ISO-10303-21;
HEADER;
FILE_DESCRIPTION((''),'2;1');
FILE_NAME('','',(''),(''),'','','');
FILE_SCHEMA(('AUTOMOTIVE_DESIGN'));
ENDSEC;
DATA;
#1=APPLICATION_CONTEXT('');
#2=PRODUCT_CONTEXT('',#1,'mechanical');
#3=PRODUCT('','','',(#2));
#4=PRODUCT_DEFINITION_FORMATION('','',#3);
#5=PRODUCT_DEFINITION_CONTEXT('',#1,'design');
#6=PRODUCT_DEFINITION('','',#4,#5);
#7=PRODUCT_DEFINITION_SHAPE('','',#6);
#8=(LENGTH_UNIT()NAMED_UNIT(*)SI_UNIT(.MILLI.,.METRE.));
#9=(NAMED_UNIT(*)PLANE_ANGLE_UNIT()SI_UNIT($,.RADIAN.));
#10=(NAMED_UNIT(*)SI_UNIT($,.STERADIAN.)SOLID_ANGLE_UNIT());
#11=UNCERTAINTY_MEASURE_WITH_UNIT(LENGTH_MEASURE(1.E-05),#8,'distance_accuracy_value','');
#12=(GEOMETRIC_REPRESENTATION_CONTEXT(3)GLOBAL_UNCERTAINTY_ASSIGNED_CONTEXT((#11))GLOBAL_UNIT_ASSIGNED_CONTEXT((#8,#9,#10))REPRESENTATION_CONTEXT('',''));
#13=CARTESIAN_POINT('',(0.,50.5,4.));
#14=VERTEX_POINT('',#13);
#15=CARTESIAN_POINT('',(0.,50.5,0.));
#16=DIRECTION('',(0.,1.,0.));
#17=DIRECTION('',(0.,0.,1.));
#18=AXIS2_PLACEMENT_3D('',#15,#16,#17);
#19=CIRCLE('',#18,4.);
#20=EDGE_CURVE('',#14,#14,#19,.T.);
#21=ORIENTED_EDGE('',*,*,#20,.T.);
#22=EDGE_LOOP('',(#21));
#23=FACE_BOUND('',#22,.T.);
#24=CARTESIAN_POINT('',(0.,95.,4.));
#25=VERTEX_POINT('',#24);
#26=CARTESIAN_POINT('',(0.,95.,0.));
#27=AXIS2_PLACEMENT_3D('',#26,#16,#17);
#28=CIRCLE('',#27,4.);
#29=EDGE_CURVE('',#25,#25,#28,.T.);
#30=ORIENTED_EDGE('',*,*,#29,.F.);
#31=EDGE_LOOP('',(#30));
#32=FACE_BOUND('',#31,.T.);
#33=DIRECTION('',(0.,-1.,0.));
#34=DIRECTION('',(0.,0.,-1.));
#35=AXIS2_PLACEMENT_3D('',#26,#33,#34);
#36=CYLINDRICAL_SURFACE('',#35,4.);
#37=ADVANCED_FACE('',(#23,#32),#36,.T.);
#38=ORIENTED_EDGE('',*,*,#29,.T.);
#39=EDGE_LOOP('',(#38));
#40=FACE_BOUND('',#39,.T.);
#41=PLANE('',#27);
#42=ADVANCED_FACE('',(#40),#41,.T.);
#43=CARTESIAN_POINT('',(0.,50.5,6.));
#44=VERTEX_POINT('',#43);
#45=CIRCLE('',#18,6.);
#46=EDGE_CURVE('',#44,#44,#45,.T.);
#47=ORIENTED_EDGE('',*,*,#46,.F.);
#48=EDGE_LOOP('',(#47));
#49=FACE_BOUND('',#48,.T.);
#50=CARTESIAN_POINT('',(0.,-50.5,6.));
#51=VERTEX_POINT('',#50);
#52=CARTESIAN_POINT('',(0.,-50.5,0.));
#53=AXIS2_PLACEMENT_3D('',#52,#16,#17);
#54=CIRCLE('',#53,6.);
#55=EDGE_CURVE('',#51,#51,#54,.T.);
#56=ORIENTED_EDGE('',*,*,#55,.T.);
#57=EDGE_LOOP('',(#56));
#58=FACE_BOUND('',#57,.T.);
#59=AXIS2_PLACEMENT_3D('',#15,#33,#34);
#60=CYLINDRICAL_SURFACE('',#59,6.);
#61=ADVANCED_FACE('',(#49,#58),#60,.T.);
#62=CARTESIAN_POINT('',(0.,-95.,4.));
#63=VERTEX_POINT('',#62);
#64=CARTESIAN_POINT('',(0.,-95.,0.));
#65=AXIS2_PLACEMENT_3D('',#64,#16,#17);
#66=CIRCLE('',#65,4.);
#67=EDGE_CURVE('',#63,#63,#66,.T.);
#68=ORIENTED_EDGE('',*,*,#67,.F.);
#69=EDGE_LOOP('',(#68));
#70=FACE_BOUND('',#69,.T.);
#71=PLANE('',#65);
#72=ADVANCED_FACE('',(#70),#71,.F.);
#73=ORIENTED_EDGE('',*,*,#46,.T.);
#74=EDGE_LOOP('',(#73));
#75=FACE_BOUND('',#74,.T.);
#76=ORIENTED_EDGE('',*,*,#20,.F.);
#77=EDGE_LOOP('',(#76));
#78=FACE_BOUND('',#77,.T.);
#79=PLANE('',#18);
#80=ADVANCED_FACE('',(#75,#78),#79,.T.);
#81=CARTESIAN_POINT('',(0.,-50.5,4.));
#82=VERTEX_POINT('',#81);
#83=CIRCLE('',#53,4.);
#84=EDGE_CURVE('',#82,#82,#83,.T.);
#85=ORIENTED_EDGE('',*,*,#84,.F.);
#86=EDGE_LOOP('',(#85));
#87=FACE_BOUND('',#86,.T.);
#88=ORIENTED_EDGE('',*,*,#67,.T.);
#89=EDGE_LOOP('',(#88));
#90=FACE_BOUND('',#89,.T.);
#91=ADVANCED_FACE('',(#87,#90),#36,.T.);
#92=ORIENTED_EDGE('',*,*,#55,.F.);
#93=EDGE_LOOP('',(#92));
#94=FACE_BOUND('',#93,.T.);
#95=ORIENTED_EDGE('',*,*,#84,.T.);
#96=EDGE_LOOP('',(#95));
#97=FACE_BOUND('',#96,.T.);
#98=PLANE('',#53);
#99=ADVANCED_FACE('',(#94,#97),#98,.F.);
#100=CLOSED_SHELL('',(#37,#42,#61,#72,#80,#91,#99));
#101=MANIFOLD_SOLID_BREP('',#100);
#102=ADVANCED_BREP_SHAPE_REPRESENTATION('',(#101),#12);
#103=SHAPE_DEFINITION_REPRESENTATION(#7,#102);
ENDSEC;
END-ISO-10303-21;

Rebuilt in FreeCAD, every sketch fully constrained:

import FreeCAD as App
import Part
import Sketcher

V = App.Vector

doc = App.newDocument("Part")
body = doc.addObject("PartDesign::Body", "Body")

# Sketch on XZ plane
sketch1 = body.newObject("Sketcher::SketchObject", "Sketch")
sketch1.AttachmentSupport = (doc.getObject("XZ_Plane"), [""])
sketch1.MapMode = "FlatFace"
sketch1.addGeometry(Part.Circle(V(0, 0, 0), V(0, 0, 1), 4), False)
sketch1.addConstraint(Sketcher.Constraint("Coincident", 0, 3, -1, 1))
sketch1.addConstraint(Sketcher.Constraint("Diameter", 0, 8.0))
pad1 = body.newObject("PartDesign::Pad", "Pad")
pad1.Profile = sketch1
pad1.Length = 190
pad1.Midplane = True

# Sketch on XZ plane
sketch2 = body.newObject("Sketcher::SketchObject", "Sketch001")
sketch2.AttachmentSupport = (doc.getObject("XZ_Plane"), [""])
sketch2.MapMode = "FlatFace"
sketch2.addGeometry(Part.Circle(V(0, 0, 0), V(0, 0, 1), 6), False)
sketch2.addGeometry(Part.Circle(V(0, 0, 0), V(0, 0, 1), 4), False)
sketch2.addConstraint(Sketcher.Constraint("Coincident", 0, 3, -1, 1))
sketch2.addConstraint(Sketcher.Constraint("Coincident", 1, 3, -1, 1))
sketch2.addConstraint(Sketcher.Constraint("Diameter", 0, 12.0))
sketch2.addConstraint(Sketcher.Constraint("Diameter", 1, 8.0))
pad2 = body.newObject("PartDesign::Pad", "Pad001")
pad2.Profile = sketch2
pad2.Length = 101
pad2.Midplane = True

doc.recompute()
